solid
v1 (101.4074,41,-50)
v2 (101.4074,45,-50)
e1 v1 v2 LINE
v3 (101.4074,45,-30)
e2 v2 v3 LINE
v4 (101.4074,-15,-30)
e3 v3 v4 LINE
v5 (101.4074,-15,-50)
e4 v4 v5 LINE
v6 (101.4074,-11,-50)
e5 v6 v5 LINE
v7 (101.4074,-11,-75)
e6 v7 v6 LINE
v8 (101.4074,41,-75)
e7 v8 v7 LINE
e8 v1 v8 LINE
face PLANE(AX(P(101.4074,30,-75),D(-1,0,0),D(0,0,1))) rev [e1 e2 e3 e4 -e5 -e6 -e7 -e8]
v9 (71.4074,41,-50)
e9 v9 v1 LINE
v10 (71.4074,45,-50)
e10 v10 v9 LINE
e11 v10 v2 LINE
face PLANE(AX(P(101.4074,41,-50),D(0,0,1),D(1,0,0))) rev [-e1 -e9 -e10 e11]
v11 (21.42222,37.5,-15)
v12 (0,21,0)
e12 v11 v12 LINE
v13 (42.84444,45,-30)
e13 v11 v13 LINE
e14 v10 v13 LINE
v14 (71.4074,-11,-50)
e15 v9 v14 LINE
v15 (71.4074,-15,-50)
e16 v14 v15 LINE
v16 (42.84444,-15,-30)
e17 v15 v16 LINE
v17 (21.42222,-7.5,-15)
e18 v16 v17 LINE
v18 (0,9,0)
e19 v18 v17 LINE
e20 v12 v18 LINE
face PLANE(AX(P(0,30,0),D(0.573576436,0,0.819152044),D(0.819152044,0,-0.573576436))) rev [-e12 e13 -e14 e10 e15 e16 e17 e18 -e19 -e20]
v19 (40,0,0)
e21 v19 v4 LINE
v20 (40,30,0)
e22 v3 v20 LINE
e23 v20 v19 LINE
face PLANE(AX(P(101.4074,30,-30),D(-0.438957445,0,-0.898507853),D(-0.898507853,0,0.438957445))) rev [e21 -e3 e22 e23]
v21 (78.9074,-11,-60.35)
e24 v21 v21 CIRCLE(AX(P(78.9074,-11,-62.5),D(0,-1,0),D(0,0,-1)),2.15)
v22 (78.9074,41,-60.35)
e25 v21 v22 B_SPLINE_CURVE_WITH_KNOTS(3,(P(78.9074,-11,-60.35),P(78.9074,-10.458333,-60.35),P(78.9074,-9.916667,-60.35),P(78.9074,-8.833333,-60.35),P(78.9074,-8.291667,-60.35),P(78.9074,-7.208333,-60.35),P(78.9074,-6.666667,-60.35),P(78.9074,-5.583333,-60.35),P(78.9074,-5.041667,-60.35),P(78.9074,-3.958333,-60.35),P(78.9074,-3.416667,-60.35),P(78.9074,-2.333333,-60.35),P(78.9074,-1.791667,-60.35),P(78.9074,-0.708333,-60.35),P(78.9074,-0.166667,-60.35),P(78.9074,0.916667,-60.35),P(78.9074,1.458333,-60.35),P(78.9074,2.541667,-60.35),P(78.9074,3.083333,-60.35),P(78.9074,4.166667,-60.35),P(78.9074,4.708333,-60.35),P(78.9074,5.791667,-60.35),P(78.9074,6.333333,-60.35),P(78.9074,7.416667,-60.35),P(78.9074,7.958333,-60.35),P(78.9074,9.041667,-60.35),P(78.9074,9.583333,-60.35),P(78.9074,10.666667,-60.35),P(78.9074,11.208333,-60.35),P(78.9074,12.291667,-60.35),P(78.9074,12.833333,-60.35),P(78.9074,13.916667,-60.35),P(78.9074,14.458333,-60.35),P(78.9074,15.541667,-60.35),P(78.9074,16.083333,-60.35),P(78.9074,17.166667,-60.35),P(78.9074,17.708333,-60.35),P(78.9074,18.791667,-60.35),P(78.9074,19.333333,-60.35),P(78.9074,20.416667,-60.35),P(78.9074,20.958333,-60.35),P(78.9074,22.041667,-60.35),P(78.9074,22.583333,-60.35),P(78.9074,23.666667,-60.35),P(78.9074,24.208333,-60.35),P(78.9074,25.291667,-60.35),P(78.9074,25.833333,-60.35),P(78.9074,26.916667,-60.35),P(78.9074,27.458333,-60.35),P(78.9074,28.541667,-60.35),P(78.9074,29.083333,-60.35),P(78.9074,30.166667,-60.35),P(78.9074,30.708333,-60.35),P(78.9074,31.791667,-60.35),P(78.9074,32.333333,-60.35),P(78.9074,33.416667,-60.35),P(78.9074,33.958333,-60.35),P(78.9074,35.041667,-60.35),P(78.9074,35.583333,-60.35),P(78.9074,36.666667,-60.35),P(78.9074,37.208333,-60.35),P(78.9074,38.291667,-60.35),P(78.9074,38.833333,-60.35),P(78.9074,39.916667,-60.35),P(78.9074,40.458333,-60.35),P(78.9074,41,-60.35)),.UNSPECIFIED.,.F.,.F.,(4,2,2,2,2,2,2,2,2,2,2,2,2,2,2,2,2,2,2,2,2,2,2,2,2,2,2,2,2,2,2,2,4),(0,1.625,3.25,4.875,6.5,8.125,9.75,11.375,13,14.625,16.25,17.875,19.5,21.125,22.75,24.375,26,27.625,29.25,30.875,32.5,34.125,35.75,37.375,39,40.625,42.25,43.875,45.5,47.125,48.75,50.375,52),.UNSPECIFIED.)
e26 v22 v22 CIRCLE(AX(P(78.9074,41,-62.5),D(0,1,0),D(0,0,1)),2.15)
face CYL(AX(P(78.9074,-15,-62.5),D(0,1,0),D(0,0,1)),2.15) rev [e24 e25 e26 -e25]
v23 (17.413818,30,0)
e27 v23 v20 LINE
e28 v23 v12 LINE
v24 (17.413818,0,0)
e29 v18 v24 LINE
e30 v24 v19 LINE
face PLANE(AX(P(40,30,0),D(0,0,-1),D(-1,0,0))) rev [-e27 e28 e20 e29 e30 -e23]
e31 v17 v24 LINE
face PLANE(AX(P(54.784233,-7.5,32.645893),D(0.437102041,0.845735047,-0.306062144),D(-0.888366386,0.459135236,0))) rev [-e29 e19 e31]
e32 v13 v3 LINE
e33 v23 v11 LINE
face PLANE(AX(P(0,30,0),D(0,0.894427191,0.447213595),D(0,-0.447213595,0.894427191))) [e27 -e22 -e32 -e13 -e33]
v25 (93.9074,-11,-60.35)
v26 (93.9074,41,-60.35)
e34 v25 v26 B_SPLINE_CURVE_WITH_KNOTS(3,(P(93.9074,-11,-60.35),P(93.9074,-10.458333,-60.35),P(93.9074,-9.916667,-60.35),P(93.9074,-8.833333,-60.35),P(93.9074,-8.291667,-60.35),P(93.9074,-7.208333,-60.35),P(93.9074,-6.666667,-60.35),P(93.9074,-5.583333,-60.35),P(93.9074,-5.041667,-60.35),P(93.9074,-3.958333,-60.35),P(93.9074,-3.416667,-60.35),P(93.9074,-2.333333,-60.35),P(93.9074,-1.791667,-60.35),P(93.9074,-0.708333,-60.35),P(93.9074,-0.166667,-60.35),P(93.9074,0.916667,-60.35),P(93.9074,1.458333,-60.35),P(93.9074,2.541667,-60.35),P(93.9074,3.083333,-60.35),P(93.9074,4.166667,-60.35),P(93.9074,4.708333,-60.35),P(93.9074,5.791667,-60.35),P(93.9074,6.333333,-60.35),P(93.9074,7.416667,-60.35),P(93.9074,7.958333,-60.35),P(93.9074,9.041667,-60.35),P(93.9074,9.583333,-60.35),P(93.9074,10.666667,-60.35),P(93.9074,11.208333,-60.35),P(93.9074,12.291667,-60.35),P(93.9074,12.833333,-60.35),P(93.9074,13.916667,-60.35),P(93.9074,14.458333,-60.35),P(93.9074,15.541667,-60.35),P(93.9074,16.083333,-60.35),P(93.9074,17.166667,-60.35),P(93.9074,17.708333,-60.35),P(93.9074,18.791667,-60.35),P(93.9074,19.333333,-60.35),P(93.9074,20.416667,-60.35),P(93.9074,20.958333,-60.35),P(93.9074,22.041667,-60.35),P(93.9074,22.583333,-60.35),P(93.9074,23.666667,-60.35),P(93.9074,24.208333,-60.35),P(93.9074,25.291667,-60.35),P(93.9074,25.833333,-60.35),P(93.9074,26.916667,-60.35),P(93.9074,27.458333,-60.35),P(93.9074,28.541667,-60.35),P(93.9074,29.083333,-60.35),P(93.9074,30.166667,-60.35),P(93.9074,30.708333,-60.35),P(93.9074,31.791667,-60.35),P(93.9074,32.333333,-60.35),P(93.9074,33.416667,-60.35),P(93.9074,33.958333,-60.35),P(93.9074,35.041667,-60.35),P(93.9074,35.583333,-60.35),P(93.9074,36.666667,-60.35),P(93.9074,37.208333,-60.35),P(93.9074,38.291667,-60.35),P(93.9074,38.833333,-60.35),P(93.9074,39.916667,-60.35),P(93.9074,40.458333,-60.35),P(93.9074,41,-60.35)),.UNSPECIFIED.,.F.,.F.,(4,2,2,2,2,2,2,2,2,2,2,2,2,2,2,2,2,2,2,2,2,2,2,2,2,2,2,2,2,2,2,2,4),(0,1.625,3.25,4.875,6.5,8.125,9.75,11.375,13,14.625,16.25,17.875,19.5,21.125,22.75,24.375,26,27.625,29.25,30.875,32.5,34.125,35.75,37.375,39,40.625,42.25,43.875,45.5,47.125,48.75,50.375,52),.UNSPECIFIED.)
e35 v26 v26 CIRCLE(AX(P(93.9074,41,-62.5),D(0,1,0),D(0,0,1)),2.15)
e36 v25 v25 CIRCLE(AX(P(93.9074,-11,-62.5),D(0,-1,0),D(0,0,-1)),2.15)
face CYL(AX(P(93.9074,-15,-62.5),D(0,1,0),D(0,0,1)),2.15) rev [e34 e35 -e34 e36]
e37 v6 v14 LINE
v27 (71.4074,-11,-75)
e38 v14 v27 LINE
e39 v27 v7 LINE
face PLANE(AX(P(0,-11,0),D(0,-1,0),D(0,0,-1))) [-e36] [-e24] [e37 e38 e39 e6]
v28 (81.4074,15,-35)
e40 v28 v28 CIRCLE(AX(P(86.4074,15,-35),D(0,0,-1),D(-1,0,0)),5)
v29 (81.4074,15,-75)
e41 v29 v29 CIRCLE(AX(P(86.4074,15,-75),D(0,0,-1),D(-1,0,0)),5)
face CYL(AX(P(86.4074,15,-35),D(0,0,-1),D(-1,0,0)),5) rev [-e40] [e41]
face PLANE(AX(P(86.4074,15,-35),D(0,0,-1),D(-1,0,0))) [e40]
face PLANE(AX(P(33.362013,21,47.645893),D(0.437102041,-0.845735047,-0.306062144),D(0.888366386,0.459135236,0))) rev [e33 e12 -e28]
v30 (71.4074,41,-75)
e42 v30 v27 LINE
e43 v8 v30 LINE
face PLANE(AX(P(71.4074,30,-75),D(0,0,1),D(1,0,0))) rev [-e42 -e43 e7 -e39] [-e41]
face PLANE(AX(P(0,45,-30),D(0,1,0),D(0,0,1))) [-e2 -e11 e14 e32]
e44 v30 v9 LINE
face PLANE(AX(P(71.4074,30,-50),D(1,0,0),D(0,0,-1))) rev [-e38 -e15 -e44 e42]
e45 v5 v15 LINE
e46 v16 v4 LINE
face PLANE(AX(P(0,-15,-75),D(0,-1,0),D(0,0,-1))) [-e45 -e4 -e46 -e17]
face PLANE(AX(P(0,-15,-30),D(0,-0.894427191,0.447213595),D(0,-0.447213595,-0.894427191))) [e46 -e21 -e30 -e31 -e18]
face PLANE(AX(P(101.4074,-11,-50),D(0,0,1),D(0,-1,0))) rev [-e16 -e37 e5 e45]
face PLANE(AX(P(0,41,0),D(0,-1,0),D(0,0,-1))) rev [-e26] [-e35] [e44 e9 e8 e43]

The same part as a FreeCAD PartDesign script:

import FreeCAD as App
import Part
import Sketcher
from FreeCAD import Vector
Q = App.Units.Quantity


def add_polygon(sketch, points):
    """Adds a closed chain of lines whose ends are joined by coincident constraints."""
    first, n = sketch.GeometryCount, len(points)
    for a, b in zip(points, points[1:] + points[:1]):
        sketch.addGeometry(Part.LineSegment(App.Vector(*a, 0), App.Vector(*b, 0)), False)
    for i in range(n):
        sketch.addConstraint(Sketcher.Constraint("Coincident", first + i, 2, first + (i + 1) % n, 1))

doc = App.newDocument("Part")
body = doc.addObject("PartDesign::Body", "Body")

# Sketch on XZ plane
sketch1 = doc.addObject("Sketcher::SketchObject", "Sketch")
body.addObject(sketch1)
sketch1.AttachmentSupport = (doc.XZ_Plane, [""])
sketch1.MapMode = "FlatFace"
add_polygon(sketch1, [(71, -50), (0, 0), (40, 0), (101, -30), (101, -75), (71, -75)])  # lines 0-5
sketch1.addConstraint([
    Sketcher.Constraint("Horizontal", 1),
    Sketcher.Constraint("Vertical", 3),
    Sketcher.Constraint("Horizontal", 4),
    Sketcher.Constraint("Vertical", 5),
    Sketcher.Constraint("Coincident", 0, 2, -1, 1),
    Sketcher.Constraint("DistanceX", 1, 1, 1, 2, 40.0),
    Sketcher.Constraint("DistanceX", 4, 2, 4, 1, 30.0),
    Sketcher.Constraint("DistanceY", 3, 2, 3, 1, 45.0),
    Sketcher.Constraint("DistanceY", 5, 1, 5, 2, 25.0),
    Sketcher.Constraint("Angle", 0, Q("145 deg")),
    Sketcher.Constraint("DistanceY", 2, 2, -1, 1, 30.0),
])
pad1 = doc.addObject("PartDesign::Pad", "Pad")
body.addObject(pad1)
pad1.Profile = sketch1
pad1.Length = 30
pad1.Reversed = True

# Sketch on YZ plane
sketch2 = doc.addObject("Sketcher::SketchObject", "Sketch001")
body.addObject(sketch2)
sketch2.AttachmentSupport = (doc.YZ_Plane, [""])
sketch2.MapMode = "FlatFace"
sketch2.AttachmentOffset = App.Placement(Vector(0, 0, 101.4074), App.Rotation())
add_polygon(sketch2, [(45, -30), (30, 0), (30, -75), (45, -75)])  # lines 0-3
add_polygon(sketch2, [(0, -75), (0, 0), (-15, -30), (-15, -75)])  # lines 4-7
sketch2.addConstraint([
    Sketcher.Constraint("Vertical", 1),
    Sketcher.Constraint("Horizontal", 2),
    Sketcher.Constraint("Vertical", 3),
    Sketcher.Constraint("Vertical", 4),
    Sketcher.Constraint("Vertical", 6),
    Sketcher.Constraint("Horizontal", 7),
    Sketcher.Constraint("Coincident", 4, 2, -1, 1),
    Sketcher.Constraint("PointOnObject", 0, 2, -1),
    Sketcher.Constraint("Horizontal", 3, 2, 5, 2),
    Sketcher.Constraint("Horizontal", 2, 2, 6, 2),
    Sketcher.Constraint("Equal", 2, 7),
    Sketcher.Constraint("DistanceX", 2, 1, 2, 2, 15.0),
    Sketcher.Constraint("DistanceY", 1, 2, 1, 1, 75.0),
    Sketcher.Constraint("DistanceY", 3, 1, 3, 2, 45.0),
    Sketcher.Constraint("DistanceX", -1, 1, 0, 2, 30.0),
])
pad2 = doc.addObject("PartDesign::Pad", "Pad001")
body.addObject(pad2)
pad2.Profile = sketch2
pad2.Length = 101.4074
pad2.Reversed = True

# Sketch on XZ plane
sketch3 = doc.addObject("Sketcher::SketchObject", "Sketch002")
body.addObject(sketch3)
sketch3.AttachmentSupport = (doc.XZ_Plane, [""])
sketch3.MapMode = "FlatFace"
sketch3.AttachmentOffset = App.Placement(Vector(0, 0, 15), App.Rotation())
add_polygon(sketch3, [(101, 0), (40, 0), (101, -30)])  # lines 0-2
add_polygon(sketch3, [(0, 0), (0, -75), (71, -75), (71, -50)])  # lines 3-6
sketch3.addConstraint([
    Sketcher.Constraint("Horizontal", 0),
    Sketcher.Constraint("Vertical", 2),
    Sketcher.Constraint("Vertical", 3),
    Sketcher.Constraint("Horizontal", 4),
    Sketcher.Constraint("Vertical", 5),
    Sketcher.Constraint("Coincident", 6, 2, -1, 1),
    Sketcher.Constraint("PointOnObject", 0, 2, -1),
    Sketcher.Constraint("DistanceY", 2, 1, 2, 2, 30.0),
    Sketcher.Constraint("DistanceY", 3, 2, 3, 1, 75.0),
    Sketcher.Constraint("DistanceY", 5, 1, 5, 2, 25.0),
    Sketcher.Constraint("Angle", 6, Q("145 deg")),
    Sketcher.Constraint("DistanceX", -1, 1, 0, 2, 40.0),
    Sketcher.Constraint("DistanceX", 4, 2, 1, 2, 30.0),
])
pocket1 = doc.addObject("PartDesign::Pocket", "Pocket")
body.addObject(pocket1)
pocket1.Profile = sketch3
pocket1.Type = "ThroughAll"

# Sketch on an angled plane
sketch4 = doc.addObject("Sketcher::SketchObject", "Sketch003")
body.addObject(sketch4)
sketch4.Placement = App.Placement(Vector(0, 0, 0), App.Rotation(Vector(-0.819152044, 0, 0.573576436), Vector(0, 0.999999999, 0), Vector(-0.573576436, 0, -0.819152044), "ZXY"))
add_polygon(sketch4, [(-26, 37), (0, 21), (0, 30)])  # lines 0-2
add_polygon(sketch4, [(-26, -7), (0, 0), (0, 9)])  # lines 3-5
sketch4.addConstraint([
    Sketcher.Constraint("Vertical", 1),
    Sketcher.Constraint("Vertical", 4),
    Sketcher.Constraint("Coincident", 3, 2, -1, 1),
    Sketcher.Constraint("PointOnObject", 0, 2, -2),
    Sketcher.Constraint("Vertical", 2, 2, 5, 2),
    Sketcher.Constraint("Equal", 1, 4),
    Sketcher.Constraint("Equal", 2, 3),
    Sketcher.Constraint("DistanceY", 1, 1, 1, 2, 9.0),
    Sketcher.Constraint("DistanceY", -1, 1, 0, 2, 21.0),
    Sketcher.Constraint("DistanceY", 5, 2, 2, 2, 45.0),
    Sketcher.Constraint("DistanceX", 2, 2, -1, 1, 26.151702),
])
pocket2 = doc.addObject("PartDesign::Pocket", "Pocket001")
body.addObject(pocket2)
pocket2.Profile = sketch4
pocket2.Type = "ThroughAll"

# Sketch on XZ plane
sketch5 = doc.addObject("Sketcher::SketchObject", "Sketch004")
body.addObject(sketch5)
sketch5.AttachmentSupport = (doc.XZ_Plane, [""])
sketch5.MapMode = "FlatFace"
sketch5.AttachmentOffset = App.Placement(Vector(0, 0, 15), App.Rotation())
add_polygon(sketch5, [(71, -50), (71, -75), (101, -75), (101, -50)])  # lines 0-3
sketch5.addConstraint([
    Sketcher.Constraint("Vertical", 0),
    Sketcher.Constraint("Horizontal", 1),
    Sketcher.Constraint("Vertical", 2),
    Sketcher.Constraint("Horizontal", 3),
    Sketcher.Constraint("DistanceX", 1, 1, 1, 2, 30.0),
    Sketcher.Constraint("DistanceY", 0, 2, 0, 1, 25.0),
    Sketcher.Constraint("DistanceY", 0, 2, -1, 1, 75.0),
    Sketcher.Constraint("DistanceX", -1, 1, 0, 2, 71.4074),
])
pocket3 = doc.addObject("PartDesign::Pocket", "Pocket002")
body.addObject(pocket3)
pocket3.Profile = sketch5
pocket3.Length = 4

# Sketch on XZ plane
sketch6 = doc.addObject("Sketcher::SketchObject", "Sketch005")
body.addObject(sketch6)
sketch6.AttachmentSupport = (doc.XZ_Plane, [""])
sketch6.MapMode = "FlatFace"
sketch6.AttachmentOffset = App.Placement(Vector(0, 0, -45), App.Rotation())
add_polygon(sketch6, [(71, -75), (71, -50), (101, -50), (101, -75)])  # lines 0-3
sketch6.addConstraint([
    Sketcher.Constraint("Vertical", 0),
    Sketcher.Constraint("Horizontal", 1),
    Sketcher.Constraint("Vertical", 2),
    Sketcher.Constraint("Horizontal", 3),
    Sketcher.Constraint("DistanceX", 1, 1, 1, 2, 30.0),
    Sketcher.Constraint("DistanceY", 0, 1, 0, 2, 25.0),
    Sketcher.Constraint("DistanceY", 0, 2, -1, 1, 50.0),
    Sketcher.Constraint("DistanceX", -1, 1, 0, 2, 71.4074),
])
pocket4 = doc.addObject("PartDesign::Pocket", "Pocket003")
body.addObject(pocket4)
pocket4.Profile = sketch6
pocket4.Length = 4
pocket4.Reversed = True

# Sketch on XZ plane
sketch7 = doc.addObject("Sketcher::SketchObject", "Sketch006")
body.addObject(sketch7)
sketch7.AttachmentSupport = (doc.XZ_Plane, [""])
sketch7.MapMode = "FlatFace"
sketch7.AttachmentOffset = App.Placement(Vector(0, 0, -41), App.Rotation())
sketch7.addGeometry([
    Part.Circle(Vector(78.9, -62.5, 0), Vector(0, 0, 1), 2.1),
    Part.Circle(Vector(93.9, -62.5, 0), Vector(0, 0, 1), 2.1),
], False)
sketch7.addConstraint([
    Sketcher.Constraint("Equal", 0, 1),
    Sketcher.Constraint("Horizontal", 0, 3, 1, 3),
    Sketcher.Constraint("Diameter", 0, 4.3),
    Sketcher.Constraint("DistanceX", 0, 3, 1, 3, 15.0),
    Sketcher.Constraint("DistanceY", 0, 3, -1, 1, 62.5),
    Sketcher.Constraint("DistanceX", -1, 1, 0, 3, 78.9074),
])
pocket5 = doc.addObject("PartDesign::Pocket", "Pocket004")
body.addObject(pocket5)
pocket5.Profile = sketch7
pocket5.Type = "ThroughAll"
pocket5.Reversed = True

# Sketch on XY plane
sketch8 = doc.addObject("Sketcher::SketchObject", "Sketch007")
body.addObject(sketch8)
sketch8.AttachmentSupport = (doc.XY_Plane, [""])
sketch8.MapMode = "FlatFace"
sketch8.AttachmentOffset = App.Placement(Vector(0, 0, -75), App.Rotation())
sketch8.addGeometry(Part.Circle(Vector(86, 15, 0), Vector(0, 0, 1), 5), False)
sketch8.addConstraint([
    Sketcher.Constraint("Diameter", 0, 10.0),
    Sketcher.Constraint("DistanceY", -1, 1, 0, 3, 15.0),
    Sketcher.Constraint("DistanceX", -1, 1, 0, 3, 86.4074),
])
pocket6 = doc.addObject("PartDesign::Pocket", "Pocket005")
body.addObject(pocket6)
pocket6.Profile = sketch8
pocket6.Length = 40
pocket6.Reversed = True

doc.recompute()
